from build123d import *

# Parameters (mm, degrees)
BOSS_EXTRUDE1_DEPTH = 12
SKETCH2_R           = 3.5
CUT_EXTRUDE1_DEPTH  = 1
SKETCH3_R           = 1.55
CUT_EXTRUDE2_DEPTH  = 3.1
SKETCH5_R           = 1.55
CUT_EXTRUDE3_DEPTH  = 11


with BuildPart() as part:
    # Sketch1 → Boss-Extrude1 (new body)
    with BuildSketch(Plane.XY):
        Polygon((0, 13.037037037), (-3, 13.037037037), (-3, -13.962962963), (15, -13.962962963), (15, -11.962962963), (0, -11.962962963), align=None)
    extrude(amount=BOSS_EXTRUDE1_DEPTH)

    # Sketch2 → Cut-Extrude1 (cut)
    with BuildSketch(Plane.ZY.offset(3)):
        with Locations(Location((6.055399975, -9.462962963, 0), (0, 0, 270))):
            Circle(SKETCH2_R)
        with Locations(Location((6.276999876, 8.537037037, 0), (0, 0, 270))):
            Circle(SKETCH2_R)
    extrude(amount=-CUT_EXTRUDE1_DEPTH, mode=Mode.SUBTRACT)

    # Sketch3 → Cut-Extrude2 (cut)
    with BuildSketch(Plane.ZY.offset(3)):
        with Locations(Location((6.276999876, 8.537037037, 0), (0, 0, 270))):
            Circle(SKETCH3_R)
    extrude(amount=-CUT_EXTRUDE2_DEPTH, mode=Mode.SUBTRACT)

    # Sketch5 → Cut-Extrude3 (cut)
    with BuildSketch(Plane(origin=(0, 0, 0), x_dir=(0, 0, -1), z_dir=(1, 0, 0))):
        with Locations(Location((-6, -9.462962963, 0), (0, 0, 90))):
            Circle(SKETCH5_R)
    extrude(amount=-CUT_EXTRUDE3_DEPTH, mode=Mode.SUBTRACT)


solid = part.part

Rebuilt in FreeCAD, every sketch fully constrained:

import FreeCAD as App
import Part
import Sketcher
Q = App.Units.Quantity


def add_polygon(sketch, points):
    """Adds a closed chain of lines whose ends are joined by coincident constraints."""
    first, n = sketch.GeometryCount, len(points)
    for a, b in zip(points, points[1:] + points[:1]):
        sketch.addGeometry(Part.LineSegment(App.Vector(*a, 0), App.Vector(*b, 0)), False)
    for i in range(n):
        sketch.addConstraint(Sketcher.Constraint("Coincident", first + i, 2, first + (i + 1) % n, 1))

doc = App.newDocument("Part")
params = doc.addObject("Spreadsheet::Sheet", "Params")
for row, (alias, value) in enumerate([
    ("sketch1_width", "3 mm"),
    ("sketch1_width2", "18 mm"),
    ("sketch1_height", "27 mm"),
    ("sketch1_height2", "2 mm"),
    ("pad1_length", "12 mm"),
    ("sketch2_diameter", "7 mm"),
    ("pocket1_length", "1 mm"),
    ("sketch3_diameter", "3.1 mm"),
    ("pocket2_length", "3.1 mm"),
    ("sketch4_diameter", "3.1 mm"),
    ("pocket3_length", "11 mm"),
], start=1):
    params.set(f"A{row}", alias)
    params.set(f"B{row}", "=" + value)
    params.setAlias(f"B{row}", alias)

body = doc.addObject("PartDesign::Body", "Body")

sketch1 = body.newObject("Sketcher::SketchObject", "Sketch")
sketch1.AttachmentSupport = (doc.getObject("XY_Plane"), [""])
sketch1.MapMode = "FlatFace"
add_polygon(sketch1, [(0, 13.037037), (-3, 13.037037), (-3, -13.962963), (15, -13.962963), (15, -11.962963), (0, -11.962963)])
sketch1.addConstraint([
    Sketcher.Constraint("Horizontal", 0),
    Sketcher.Constraint("Vertical", 1),
    Sketcher.Constraint("Horizontal", 2),
    Sketcher.Constraint("Vertical", 3),
    Sketcher.Constraint("Horizontal", 4),
    Sketcher.Constraint("Vertical", 5),
    Sketcher.Constraint("PointOnObject", 4, 2, -2),
    Sketcher.Constraint("DistanceX", 0, 2, 0, 1, Q("3 mm")),
    Sketcher.Constraint("DistanceX", 2, 1, 2, 2, Q("18 mm")),
    Sketcher.Constraint("DistanceY", 1, 2, 1, 1, Q("27 mm")),
    Sketcher.Constraint("DistanceY", 3, 1, 3, 2, Q("2 mm")),
    Sketcher.Constraint("DistanceY", -1, 1, 0, 2, Q("13.037037 mm")),
])
sketch1.setExpression("Constraints[13]", "Params.sketch1_width")
sketch1.setExpression("Constraints[14]", "Params.sketch1_width2")
sketch1.setExpression("Constraints[15]", "Params.sketch1_height")
sketch1.setExpression("Constraints[16]", "Params.sketch1_height2")
pad1 = body.newObject("PartDesign::Pad", "Pad")
pad1.Profile = sketch1
pad1.setExpression("Length", "Params.pad1_length")

sketch2 = body.newObject("Sketcher::SketchObject", "Sketch001")
sketch2.AttachmentSupport = (doc.getObject("YZ_Plane"), [""])
sketch2.MapMode = "FlatFace"
sketch2.AttachmentOffset = App.Placement(App.Vector(0, 0, -3), App.Rotation())
sketch2.addGeometry([
    Part.Circle(App.Vector(-9.462963, 6.0554, 0), App.Vector(0, 0, 1), 3.5),
    Part.Circle(App.Vector(8.537037, 6.277, 0), App.Vector(0, 0, 1), 3.5),
], False)
sketch2.addConstraint([
    Sketcher.Constraint("Equal", 0, 1),
    Sketcher.Constraint("Diameter", 0, Q("7 mm")),
    Sketcher.Constraint("DistanceX", 0, 3, 1, 3, Q("18 mm")),
    Sketcher.Constraint("DistanceY", -1, 1, 1, 3, Q("6.277 mm")),
    Sketcher.Constraint("DistanceY", -1, 1, 0, 3, Q("6.0554 mm")),
    Sketcher.Constraint("DistanceX", 0, 3, -1, 1, Q("9.462963 mm")),
])
sketch2.setExpression("Constraints[1]", "Params.sketch2_diameter")
pocket1 = body.newObject("PartDesign::Pocket", "Pocket")
pocket1.Profile = sketch2
pocket1.setExpression("Length", "Params.pocket1_length")
pocket1.Reversed = True

sketch3 = body.newObject("Sketcher::SketchObject", "Sketch002")
sketch3.AttachmentSupport = (doc.getObject("YZ_Plane"), [""])
sketch3.MapMode = "FlatFace"
sketch3.AttachmentOffset = App.Placement(App.Vector(0, 0, -3), App.Rotation())
sketch3.addGeometry(Part.Circle(App.Vector(8.537037, 6.277, 0), App.Vector(0, 0, 1), 1.55), False)
sketch3.addConstraint([
    Sketcher.Constraint("Diameter", 0, Q("3.1 mm")),
    Sketcher.Constraint("DistanceY", -1, 1, 0, 3, Q("6.277 mm")),
    Sketcher.Constraint("DistanceX", -1, 1, 0, 3, Q("8.537037 mm")),
])
sketch3.setExpression("Constraints[0]", "Params.sketch3_diameter")
pocket2 = body.newObject("PartDesign::Pocket", "Pocket001")
pocket2.Profile = sketch3
pocket2.setExpression("Length", "Params.pocket2_length")
pocket2.Reversed = True

sketch4 = body.newObject("Sketcher::SketchObject", "Sketch003")
sketch4.AttachmentSupport = (doc.getObject("YZ_Plane"), [""])
sketch4.MapMode = "FlatFace"
sketch4.addGeometry(Part.Circle(App.Vector(-9.462963, 6, 0), App.Vector(0, 0, 1), 1.55), False)
sketch4.addConstraint([
    Sketcher.Constraint("Diameter", 0, Q("3.1 mm")),
    Sketcher.Constraint("DistanceY", -1, 1, 0, 3, Q("6 mm")),
    Sketcher.Constraint("DistanceX", 0, 3, -1, 1, Q("9.462963 mm")),
])
sketch4.setExpression("Constraints[0]", "Params.sketch4_diameter")
pocket3 = body.newObject("PartDesign::Pocket", "Pocket002")
pocket3.Profile = sketch4
pocket3.setExpression("Length", "Params.pocket3_length")

doc.recompute()
